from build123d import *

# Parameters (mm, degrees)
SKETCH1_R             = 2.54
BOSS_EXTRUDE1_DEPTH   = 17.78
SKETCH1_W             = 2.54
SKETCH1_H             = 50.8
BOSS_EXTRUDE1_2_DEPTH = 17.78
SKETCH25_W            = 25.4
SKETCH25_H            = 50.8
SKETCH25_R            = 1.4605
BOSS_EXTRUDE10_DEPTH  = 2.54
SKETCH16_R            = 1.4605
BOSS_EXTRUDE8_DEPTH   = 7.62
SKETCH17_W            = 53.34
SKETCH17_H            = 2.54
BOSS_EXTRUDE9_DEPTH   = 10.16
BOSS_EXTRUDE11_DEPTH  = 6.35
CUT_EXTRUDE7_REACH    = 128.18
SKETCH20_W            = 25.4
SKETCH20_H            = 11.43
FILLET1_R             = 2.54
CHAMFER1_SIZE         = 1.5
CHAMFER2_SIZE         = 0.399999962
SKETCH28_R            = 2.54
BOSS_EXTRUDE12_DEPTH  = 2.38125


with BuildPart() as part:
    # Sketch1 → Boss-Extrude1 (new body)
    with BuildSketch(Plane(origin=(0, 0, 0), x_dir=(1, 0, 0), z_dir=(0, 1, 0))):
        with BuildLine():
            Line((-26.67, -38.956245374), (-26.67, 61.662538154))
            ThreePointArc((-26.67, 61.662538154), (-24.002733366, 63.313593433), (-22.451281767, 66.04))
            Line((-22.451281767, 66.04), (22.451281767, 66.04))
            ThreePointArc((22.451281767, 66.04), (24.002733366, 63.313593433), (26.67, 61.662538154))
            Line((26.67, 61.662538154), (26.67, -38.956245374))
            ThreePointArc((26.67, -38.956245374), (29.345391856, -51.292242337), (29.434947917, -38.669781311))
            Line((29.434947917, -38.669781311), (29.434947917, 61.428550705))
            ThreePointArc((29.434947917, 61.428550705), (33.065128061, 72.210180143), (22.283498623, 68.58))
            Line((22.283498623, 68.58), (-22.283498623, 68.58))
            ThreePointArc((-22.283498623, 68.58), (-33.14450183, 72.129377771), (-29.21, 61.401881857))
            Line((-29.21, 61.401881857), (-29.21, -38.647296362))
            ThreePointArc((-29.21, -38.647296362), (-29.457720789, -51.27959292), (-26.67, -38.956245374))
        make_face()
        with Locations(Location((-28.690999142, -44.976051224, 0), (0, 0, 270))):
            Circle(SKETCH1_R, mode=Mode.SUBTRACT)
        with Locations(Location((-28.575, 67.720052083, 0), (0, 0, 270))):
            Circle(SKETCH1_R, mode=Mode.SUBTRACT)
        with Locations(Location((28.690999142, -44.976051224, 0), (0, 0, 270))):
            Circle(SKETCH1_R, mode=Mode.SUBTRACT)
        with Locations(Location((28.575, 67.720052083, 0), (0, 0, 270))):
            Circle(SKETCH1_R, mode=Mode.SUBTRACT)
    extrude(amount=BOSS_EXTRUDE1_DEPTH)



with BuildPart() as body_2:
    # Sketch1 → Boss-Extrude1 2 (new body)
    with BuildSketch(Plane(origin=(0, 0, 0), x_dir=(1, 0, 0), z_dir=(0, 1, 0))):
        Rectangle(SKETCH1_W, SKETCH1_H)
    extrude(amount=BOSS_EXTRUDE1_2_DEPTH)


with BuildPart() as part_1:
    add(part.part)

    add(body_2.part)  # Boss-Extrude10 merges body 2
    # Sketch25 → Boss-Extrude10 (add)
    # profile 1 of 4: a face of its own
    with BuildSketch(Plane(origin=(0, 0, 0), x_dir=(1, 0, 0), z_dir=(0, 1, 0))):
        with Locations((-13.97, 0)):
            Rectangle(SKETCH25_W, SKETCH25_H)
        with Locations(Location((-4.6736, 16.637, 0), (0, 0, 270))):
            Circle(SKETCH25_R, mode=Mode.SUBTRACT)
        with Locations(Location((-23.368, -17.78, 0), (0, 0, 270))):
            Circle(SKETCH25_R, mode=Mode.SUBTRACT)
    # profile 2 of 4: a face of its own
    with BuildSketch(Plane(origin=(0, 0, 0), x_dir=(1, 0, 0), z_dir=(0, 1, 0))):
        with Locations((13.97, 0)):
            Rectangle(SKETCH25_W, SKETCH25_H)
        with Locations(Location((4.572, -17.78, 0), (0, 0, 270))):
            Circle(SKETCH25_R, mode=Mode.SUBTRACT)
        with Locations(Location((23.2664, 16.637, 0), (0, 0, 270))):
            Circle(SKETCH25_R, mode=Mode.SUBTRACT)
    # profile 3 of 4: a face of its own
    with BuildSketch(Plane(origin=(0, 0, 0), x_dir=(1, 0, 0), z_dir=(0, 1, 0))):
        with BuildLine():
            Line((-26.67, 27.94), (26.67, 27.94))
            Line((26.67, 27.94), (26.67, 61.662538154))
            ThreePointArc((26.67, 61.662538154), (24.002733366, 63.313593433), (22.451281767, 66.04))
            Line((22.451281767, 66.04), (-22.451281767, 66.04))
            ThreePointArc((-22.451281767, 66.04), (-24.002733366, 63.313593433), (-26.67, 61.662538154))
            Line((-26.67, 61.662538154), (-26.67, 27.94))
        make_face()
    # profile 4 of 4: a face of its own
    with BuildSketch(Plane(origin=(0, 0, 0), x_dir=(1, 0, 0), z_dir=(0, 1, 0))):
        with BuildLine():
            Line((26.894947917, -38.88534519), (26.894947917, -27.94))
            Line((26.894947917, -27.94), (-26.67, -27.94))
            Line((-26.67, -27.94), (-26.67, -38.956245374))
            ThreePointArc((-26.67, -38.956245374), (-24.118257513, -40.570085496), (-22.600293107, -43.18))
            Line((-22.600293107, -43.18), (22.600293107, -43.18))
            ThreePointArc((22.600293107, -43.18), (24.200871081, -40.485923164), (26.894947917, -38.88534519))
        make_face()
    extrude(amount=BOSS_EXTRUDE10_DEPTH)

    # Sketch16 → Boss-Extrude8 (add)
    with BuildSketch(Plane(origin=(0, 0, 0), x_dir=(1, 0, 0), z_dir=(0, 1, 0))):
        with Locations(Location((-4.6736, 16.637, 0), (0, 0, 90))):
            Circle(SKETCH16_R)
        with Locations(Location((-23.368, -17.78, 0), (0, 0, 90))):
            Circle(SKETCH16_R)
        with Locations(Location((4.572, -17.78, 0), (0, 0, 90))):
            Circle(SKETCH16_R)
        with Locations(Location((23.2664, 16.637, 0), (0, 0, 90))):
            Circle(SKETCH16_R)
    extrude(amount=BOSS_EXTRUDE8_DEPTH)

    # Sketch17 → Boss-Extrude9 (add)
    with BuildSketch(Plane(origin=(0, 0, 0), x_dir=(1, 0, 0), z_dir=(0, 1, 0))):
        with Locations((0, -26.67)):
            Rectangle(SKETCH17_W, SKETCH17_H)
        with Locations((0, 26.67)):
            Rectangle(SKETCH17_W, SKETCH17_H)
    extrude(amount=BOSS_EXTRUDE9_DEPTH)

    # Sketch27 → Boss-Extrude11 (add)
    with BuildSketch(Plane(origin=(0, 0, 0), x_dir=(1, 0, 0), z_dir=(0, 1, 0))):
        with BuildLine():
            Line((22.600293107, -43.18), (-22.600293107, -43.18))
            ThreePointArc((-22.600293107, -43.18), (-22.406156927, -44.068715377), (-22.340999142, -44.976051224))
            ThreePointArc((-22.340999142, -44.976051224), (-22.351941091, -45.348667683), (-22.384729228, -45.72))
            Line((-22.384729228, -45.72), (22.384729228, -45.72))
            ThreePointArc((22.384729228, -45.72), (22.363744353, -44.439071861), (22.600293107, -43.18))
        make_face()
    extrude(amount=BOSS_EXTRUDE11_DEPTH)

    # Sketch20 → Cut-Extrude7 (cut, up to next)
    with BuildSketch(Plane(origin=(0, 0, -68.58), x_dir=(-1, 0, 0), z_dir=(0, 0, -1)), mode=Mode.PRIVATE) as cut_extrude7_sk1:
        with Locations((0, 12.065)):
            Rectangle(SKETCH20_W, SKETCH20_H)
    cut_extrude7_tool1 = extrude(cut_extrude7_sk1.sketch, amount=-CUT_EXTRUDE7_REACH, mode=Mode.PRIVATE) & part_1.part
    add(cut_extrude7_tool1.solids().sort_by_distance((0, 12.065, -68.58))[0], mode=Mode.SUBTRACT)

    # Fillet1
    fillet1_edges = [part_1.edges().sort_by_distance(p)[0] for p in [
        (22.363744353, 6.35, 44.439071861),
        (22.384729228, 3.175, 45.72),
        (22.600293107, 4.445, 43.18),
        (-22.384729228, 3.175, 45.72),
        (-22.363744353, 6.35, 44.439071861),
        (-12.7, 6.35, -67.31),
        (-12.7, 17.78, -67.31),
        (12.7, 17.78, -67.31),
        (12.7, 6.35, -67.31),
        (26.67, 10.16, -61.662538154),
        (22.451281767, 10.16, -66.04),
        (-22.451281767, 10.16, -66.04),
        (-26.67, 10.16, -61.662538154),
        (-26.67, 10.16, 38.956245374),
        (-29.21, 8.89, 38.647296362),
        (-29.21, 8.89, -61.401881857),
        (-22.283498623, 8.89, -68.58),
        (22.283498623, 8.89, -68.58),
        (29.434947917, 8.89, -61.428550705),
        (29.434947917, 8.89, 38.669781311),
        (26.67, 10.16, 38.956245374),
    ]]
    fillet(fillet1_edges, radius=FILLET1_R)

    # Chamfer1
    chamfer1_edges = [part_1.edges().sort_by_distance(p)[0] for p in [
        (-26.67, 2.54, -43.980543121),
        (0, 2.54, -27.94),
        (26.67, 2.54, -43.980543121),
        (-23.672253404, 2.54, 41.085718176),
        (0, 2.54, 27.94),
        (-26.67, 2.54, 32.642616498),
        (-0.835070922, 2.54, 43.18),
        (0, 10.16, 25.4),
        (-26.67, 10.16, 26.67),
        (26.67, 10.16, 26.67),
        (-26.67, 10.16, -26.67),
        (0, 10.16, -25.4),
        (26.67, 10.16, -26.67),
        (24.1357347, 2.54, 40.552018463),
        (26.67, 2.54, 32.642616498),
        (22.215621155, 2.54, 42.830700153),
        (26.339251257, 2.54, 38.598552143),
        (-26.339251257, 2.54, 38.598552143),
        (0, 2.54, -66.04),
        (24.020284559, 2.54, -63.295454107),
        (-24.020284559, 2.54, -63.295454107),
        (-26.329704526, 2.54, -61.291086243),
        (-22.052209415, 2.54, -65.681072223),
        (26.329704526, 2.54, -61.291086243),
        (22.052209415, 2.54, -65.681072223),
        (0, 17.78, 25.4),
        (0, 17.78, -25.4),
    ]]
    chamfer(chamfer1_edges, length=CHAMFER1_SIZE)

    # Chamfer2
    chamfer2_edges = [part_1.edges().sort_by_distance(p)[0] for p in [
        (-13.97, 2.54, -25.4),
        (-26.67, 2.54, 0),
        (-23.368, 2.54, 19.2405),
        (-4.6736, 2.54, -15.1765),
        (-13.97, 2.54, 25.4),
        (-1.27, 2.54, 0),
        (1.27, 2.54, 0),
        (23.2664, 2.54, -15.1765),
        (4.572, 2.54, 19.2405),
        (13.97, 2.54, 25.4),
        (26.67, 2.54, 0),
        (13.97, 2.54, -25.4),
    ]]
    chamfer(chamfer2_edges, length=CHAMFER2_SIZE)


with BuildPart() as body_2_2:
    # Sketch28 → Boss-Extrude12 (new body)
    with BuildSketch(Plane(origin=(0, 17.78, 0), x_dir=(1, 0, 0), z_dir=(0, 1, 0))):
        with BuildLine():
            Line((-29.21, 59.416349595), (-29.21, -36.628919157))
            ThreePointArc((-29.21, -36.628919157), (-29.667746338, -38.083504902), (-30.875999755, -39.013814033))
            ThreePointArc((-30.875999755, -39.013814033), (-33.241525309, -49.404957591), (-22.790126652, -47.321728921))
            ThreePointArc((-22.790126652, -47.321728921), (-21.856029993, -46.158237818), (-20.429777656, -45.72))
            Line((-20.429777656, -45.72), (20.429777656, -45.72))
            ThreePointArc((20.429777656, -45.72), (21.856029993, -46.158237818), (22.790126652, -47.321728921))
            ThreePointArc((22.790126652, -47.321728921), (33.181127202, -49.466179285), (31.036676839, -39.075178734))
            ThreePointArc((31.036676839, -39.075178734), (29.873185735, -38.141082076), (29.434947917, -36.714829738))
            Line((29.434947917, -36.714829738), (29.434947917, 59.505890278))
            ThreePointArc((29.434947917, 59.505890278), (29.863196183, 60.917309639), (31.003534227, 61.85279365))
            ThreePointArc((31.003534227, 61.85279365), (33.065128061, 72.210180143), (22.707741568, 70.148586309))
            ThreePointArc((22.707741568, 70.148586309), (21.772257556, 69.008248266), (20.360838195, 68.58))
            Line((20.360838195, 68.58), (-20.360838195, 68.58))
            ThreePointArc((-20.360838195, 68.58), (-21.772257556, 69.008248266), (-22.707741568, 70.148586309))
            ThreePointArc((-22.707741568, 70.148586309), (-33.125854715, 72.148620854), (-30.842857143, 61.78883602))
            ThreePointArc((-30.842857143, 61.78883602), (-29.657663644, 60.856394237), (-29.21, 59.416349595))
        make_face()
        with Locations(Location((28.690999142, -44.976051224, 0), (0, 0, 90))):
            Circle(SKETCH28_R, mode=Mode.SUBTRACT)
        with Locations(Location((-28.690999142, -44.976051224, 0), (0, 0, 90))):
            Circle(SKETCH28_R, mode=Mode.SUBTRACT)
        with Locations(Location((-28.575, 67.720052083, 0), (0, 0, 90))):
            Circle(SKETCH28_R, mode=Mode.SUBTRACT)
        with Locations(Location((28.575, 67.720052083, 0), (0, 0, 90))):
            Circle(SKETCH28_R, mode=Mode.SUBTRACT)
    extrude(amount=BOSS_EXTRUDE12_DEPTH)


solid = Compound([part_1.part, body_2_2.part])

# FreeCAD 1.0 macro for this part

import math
import FreeCAD as App
import Part
import Sketcher

V = App.Vector
Q = App.Units.Quantity


def edges_at(feature, points):
    """Names of the edges that pass closest to the given points."""
    edges = feature.Shape.Edges
    near = lambda p: min(range(len(edges)), key=lambda i: edges[i].distToShape(Part.Vertex(*p))[0])
    return sorted({f"Edge{near(p) + 1}" for p in points})

doc = App.newDocument("Part")
params = doc.addObject("Spreadsheet::Sheet", "Params")
for row, (alias, value) in enumerate([
    ("sketch1_diameter", "0.2 in"),
    ("sketch1_radius", "0.25 in"),
    ("pad1_length", "0.7 in"),
    ("sketch2_height", "2 in"),
    ("sketch2_width", "0.1 in"),
    ("pad2_length", "0.7 in"),
    ("sketch3_width", "1 in"),
    ("sketch3_height", "2 in"),
    ("sketch3_radius", "0.25 in"),
    ("sketch3_diameter", "0.115 in"),
    ("sketch3_width2", "2.1 in"),
    ("pad3_length", "0.1 in"),
    ("sketch4_diameter", "0.115 in"),
    ("pad4_length", "0.3 in"),
    ("sketch5_width", "2.1 in"),
    ("sketch5_height", "0.1 in"),
    ("pad5_length", "0.4 in"),
    ("sketch6_radius", "0.25 in"),
    ("pad6_length", "0.25 in"),
    ("sketch7_width", "1 in"),
    ("sketch7_height", "0.45 in"),
    ("fillet_radius", "0.1 in"),
    ("chamfer_size", "1.5 mm"),
    ("chamfer2_size", "0.4 mm"),
    ("sketch8_diameter", "0.2 in"),
    ("sketch8_radius", "0.25 in"),
    ("pad7_length", "0.09375 in"),
], start=1):
    params.set(f"A{row}", alias)
    params.set(f"B{row}", "=" + value)
    params.setAlias(f"B{row}", alias)

body = doc.addObject("PartDesign::Body", "Body")

sketch1 = body.newObject("Sketcher::SketchObject", "Sketch")
sketch1.AttachmentSupport = (doc.getObject("XZ_Plane"), [""])
sketch1.MapMode = "FlatFace"
sketch1.addGeometry([
    Part.LineSegment(V(-26.67, 38.956245, 0), V(-26.67, -61.662538, 0)),
    Part.ArcOfCircle(Part.Circle(V(-28.575, -67.720052, 0), V(0, 0, 1), 6.35), math.radians(15.341709), math.radians(72.542397)),
    Part.LineSegment(V(-22.451282, -66.04, 0), V(22.451282, -66.04, 0)),
    Part.ArcOfCircle(Part.Circle(V(28.575, -67.720052, 0), V(0, 0, 1), 6.35), math.radians(107.457603), math.radians(164.658291)),
    Part.LineSegment(V(26.67, -61.662538, 0), V(26.67, 38.956245, 0)),
    Part.ArcOfCircle(Part.Circle(V(28.690999, 44.976051, 0), V(0, 0, 1), 6.35), math.radians(-83.27193), math.radians(251.441812)),
    Part.LineSegment(V(29.434948, 38.669781, 0), V(29.434948, -61.428551, 0)),
    Part.ArcOfCircle(Part.Circle(V(28.575, -67.720052, 0), V(0, 0, 1), 6.35), math.radians(-172.216811), math.radians(82.216811)),
    Part.LineSegment(V(22.283499, -68.58, 0), V(-22.283499, -68.58, 0)),
    Part.ArcOfCircle(Part.Circle(V(-28.575, -67.720052, 0), V(0, 0, 1), 6.35), math.radians(95.73917), math.radians(352.216811)),
    Part.LineSegment(V(-29.21, -61.401882, 0), V(-29.21, 38.647296, 0)),
    Part.ArcOfCircle(Part.Circle(V(-28.690999, 44.976051, 0), V(0, 0, 1), 6.35), math.radians(-71.441812), math.radians(265.311848)),
    Part.Circle(V(-28.690999, 44.976051, 0), V(0, 0, 1), 2.54),
    Part.Circle(V(28.690999, 44.976051, 0), V(0, 0, 1), 2.54),
    Part.Circle(V(-28.575, -67.720052, 0), V(0, 0, 1), 2.54),
    Part.Circle(V(28.575, -67.720052, 0), V(0, 0, 1), 2.54),
], False)
sketch1.addConstraint([
    Sketcher.Constraint("Coincident", 0, 2, 1, 2),
    Sketcher.Constraint("Coincident", 1, 1, 2, 1),
    Sketcher.Constraint("Coincident", 2, 2, 3, 2),
    Sketcher.Constraint("Coincident", 3, 1, 4, 1),
    Sketcher.Constraint("Coincident", 4, 2, 5, 2),
    Sketcher.Constraint("Coincident", 5, 1, 6, 1),
    Sketcher.Constraint("Coincident", 6, 2, 7, 2),
    Sketcher.Constraint("Coincident", 7, 1, 8, 1),
    Sketcher.Constraint("Coincident", 8, 2, 9, 2),
    Sketcher.Constraint("Coincident", 9, 1, 10, 1),
    Sketcher.Constraint("Coincident", 10, 2, 11, 2),
    Sketcher.Constraint("Coincident", 11, 1, 0, 1),
    Sketcher.Constraint("Vertical", 0),
    Sketcher.Constraint("Horizontal", 2),
    Sketcher.Constraint("Vertical", 4),
    Sketcher.Constraint("Vertical", 6),
    Sketcher.Constraint("Horizontal", 8),
    Sketcher.Constraint("Vertical", 10),
    Sketcher.Constraint("Coincident", 7, 3, 3, 3),
    Sketcher.Constraint("Coincident", 9, 3, 1, 3),
    Sketcher.Constraint("Coincident", 12, 3, 11, 3),
    Sketcher.Constraint("Coincident", 13, 3, 5, 3),
    Sketcher.Constraint("Coincident", 14, 3, 1, 3),
    Sketcher.Constraint("Coincident", 15, 3, 3, 3),
    Sketcher.Constraint("Equal", 1, 3),
    Sketcher.Constraint("Equal", 3, 5),
    Sketcher.Constraint("Equal", 5, 7),
    Sketcher.Constraint("Equal", 7, 9),
    Sketcher.Constraint("Equal", 9, 11),
    Sketcher.Constraint("Equal", 12, 13),
    Sketcher.Constraint("Equal", 13, 14),
    Sketcher.Constraint("Equal", 14, 15),
    Sketcher.Constraint("Symmetric", 1, 3, 3, 3, -2),
    Sketcher.Constraint("Symmetric", 5, 3, 11, 3, -2),
    Sketcher.Constraint("Horizontal", 0, 2, 3, 1),
    Sketcher.Constraint("Diameter", 12, Q("0.2 in")),
    Sketcher.Constraint("Radius", 1, Q("0.25 in")),
    Sketcher.Constraint("DistanceY", 1, 1, -1, 1, Q("2.6 in")),
    Sketcher.Constraint("DistanceY", 7, 1, -1, 1, Q("2.7 in")),
    Sketcher.Constraint("DistanceX", 9, 1, 0, 2, Q("0.1 in")),
    Sketcher.Constraint("DistanceX", 10, 2, 4, 2, Q("2.2 in")),
    Sketcher.Constraint("DistanceX", 1, 3, 3, 3, Q("2.25 in")),
    Sketcher.Constraint("DistanceY", 10, 1, 10, 2, 100.049178),
    Sketcher.Constraint("DistanceX", -1, 1, 5, 3, 28.690999),
    Sketcher.Constraint("DistanceX", -1, 1, 7, 1, 22.283499),
    Sketcher.Constraint("DistanceY", 3, 3, 6, 2, 6.291501),
])
sketch1.setExpression("Constraints[35]", "Params.sketch1_diameter")
sketch1.setExpression("Constraints[36]", "Params.sketch1_radius")
pad1 = body.newObject("PartDesign::Pad", "Pad")
pad1.Profile = sketch1
pad1.setExpression("Length", "Params.pad1_length")
pad1.Reversed = True
body2 = doc.addObject("PartDesign::Body", "Body001")

sketch2 = body2.newObject("Sketcher::SketchObject", "Sketch001")
sketch2.AttachmentSupport = (doc.getObject("XZ_Plane001"), [""])
sketch2.MapMode = "FlatFace"
sketch2.addGeometry([
    Part.LineSegment(V(-1.27, -25.4, 0), V(-1.27, 25.4, 0)),
    Part.LineSegment(V(-1.27, 25.4, 0), V(1.27, 25.4, 0)),
    Part.LineSegment(V(1.27, 25.4, 0), V(1.27, -25.4, 0)),
    Part.LineSegment(V(1.27, -25.4, 0), V(-1.27, -25.4, 0)),
], False)
sketch2.addConstraint([
    Sketcher.Constraint("Coincident", 0, 2, 1, 1),
    Sketcher.Constraint("Coincident", 1, 2, 2, 1),
    Sketcher.Constraint("Coincident", 2, 2, 3, 1),
    Sketcher.Constraint("Coincident", 3, 2, 0, 1),
    Sketcher.Constraint("Vertical", 0),
    Sketcher.Constraint("Horizontal", 1),
    Sketcher.Constraint("Vertical", 2),
    Sketcher.Constraint("Horizontal", 3),
    Sketcher.Constraint("Symmetric", 0, 2, 2, 2, -1, 1),
    Sketcher.Constraint("DistanceY", 0, 1, 0, 2, Q("2 in")),
    Sketcher.Constraint("DistanceX", 1, 1, 1, 2, Q("0.1 in")),
])
sketch2.setExpression("Constraints[9]", "Params.sketch2_height")
sketch2.setExpression("Constraints[10]", "Params.sketch2_width")
pad2 = body2.newObject("PartDesign::Pad", "Pad001")
pad2.Profile = sketch2
pad2.setExpression("Length", "Params.pad2_length")
pad2.Reversed = True
body.AllowCompound = True
doc.recompute()

boolean = body.newObject("PartDesign::Boolean", "Boolean")
boolean.Type = "Fuse"
boolean.addObjects([body2])

sketch3 = body.newObject("Sketcher::SketchObject", "Sketch002")
sketch3.AttachmentSupport = (doc.getObject("XZ_Plane"), [""])
sketch3.MapMode = "FlatFace"
sketch3.addGeometry([
    Part.LineSegment(V(-26.67, -25.4, 0), V(-26.67, 25.4, 0)),
    Part.LineSegment(V(-26.67, 25.4, 0), V(-1.27, 25.4, 0)),
    Part.LineSegment(V(-1.27, 25.4, 0), V(-1.27, -25.4, 0)),
    Part.LineSegment(V(-1.27, -25.4, 0), V(-26.67, -25.4, 0)),
    Part.Circle(V(-23.368, 17.78, 0), V(0, 0, 1), 1.4605),
    Part.Circle(V(-4.6736, -16.637, 0), V(0, 0, 1), 1.4605),
    Part.LineSegment(V(1.27, -25.4, 0), V(1.27, 25.4, 0)),
    Part.LineSegment(V(1.27, 25.4, 0), V(26.67, 25.4, 0)),
    Part.LineSegment(V(26.67, 25.4, 0), V(26.67, -25.4, 0)),
    Part.LineSegment(V(26.67, -25.4, 0), V(1.27, -25.4, 0)),
    Part.Circle(V(4.572, 17.78, 0), V(0, 0, 1), 1.4605),
    Part.Circle(V(23.2664, -16.637, 0), V(0, 0, 1), 1.4605),
    Part.LineSegment(V(-26.67, -27.94, 0), V(26.67, -27.94, 0)),
    Part.LineSegment(V(26.67, -27.94, 0), V(26.67, -61.662538, 0)),
    Part.ArcOfCircle(Part.Circle(V(28.575, -67.720052, 0), V(0, 0, 1), 6.35), math.radians(107.457603), math.radians(164.658291)),
    Part.LineSegment(V(22.451282, -66.04, 0), V(-22.451282, -66.04, 0)),
    Part.ArcOfCircle(Part.Circle(V(-28.575, -67.720052, 0), V(0, 0, 1), 6.35), math.radians(15.341709), math.radians(72.542397)),
    Part.LineSegment(V(-26.67, -61.662538, 0), V(-26.67, -27.94, 0)),
    Part.LineSegment(V(26.894948, 38.885345, 0), V(26.894948, 27.94, 0)),
    Part.LineSegment(V(26.894948, 27.94, 0), V(-26.67, 27.94, 0)),
    Part.LineSegment(V(-26.67, 27.94, 0), V(-26.67, 38.956245, 0)),
    Part.ArcOfCircle(Part.Circle(V(-28.690999, 44.976051, 0), V(0, 0, 1), 6.35), math.radians(-71.441812), math.radians(-16.42994)),
    Part.LineSegment(V(-22.600293, 43.18, 0), V(22.600293, 43.18, 0)),
    Part.ArcOfCircle(Part.Circle(V(28.690999, 44.976051, 0), V(0, 0, 1), 6.35), math.radians(-163.57006), math.radians(-106.42994)),
], False)
sketch3.addConstraint([
    Sketcher.Constraint("Coincident", 0, 2, 1, 1),
    Sketcher.Constraint("Coincident", 1, 2, 2, 1),
    Sketcher.Constraint("Coincident", 2, 2, 3, 1),
    Sketcher.Constraint("Coincident", 3, 2, 0, 1),
    Sketcher.Constraint("Coincident", 6, 2, 7, 1),
    Sketcher.Constraint("Coincident", 7, 2, 8, 1),
    Sketcher.Constraint("Coincident", 8, 2, 9, 1),
    Sketcher.Constraint("Coincident", 9, 2, 6, 1),
    Sketcher.Constraint("Coincident", 12, 2, 13, 1),
    Sketcher.Constraint("Coincident", 13, 2, 14, 1),
    Sketcher.Constraint("Coincident", 14, 2, 15, 1),
    Sketcher.Constraint("Coincident", 15, 2, 16, 1),
    Sketcher.Constraint("Coincident", 16, 2, 17, 1),
    Sketcher.Constraint("Coincident", 17, 2, 12, 1),
    Sketcher.Constraint("Coincident", 18, 2, 19, 1),
    Sketcher.Constraint("Coincident", 19, 2, 20, 1),
    Sketcher.Constraint("Coincident", 20, 2, 21, 1),
    Sketcher.Constraint("Coincident", 21, 2, 22, 1),
    Sketcher.Constraint("Coincident", 22, 2, 23, 1),
    Sketcher.Constraint("Coincident", 23, 2, 18, 1),
    Sketcher.Constraint("Vertical", 0),
    Sketcher.Constraint("Horizontal", 1),
    Sketcher.Constraint("Vertical", 2),
    Sketcher.Constraint("Horizontal", 3),
    Sketcher.Constraint("Vertical", 6),
    Sketcher.Constraint("Horizontal", 7),
    Sketcher.Constraint("Vertical", 8),
    Sketcher.Constraint("Horizontal", 9),
    Sketcher.Constraint("Horizontal", 12),
    Sketcher.Constraint("Vertical", 13),
    Sketcher.Constraint("Horizontal", 15),
    Sketcher.Constraint("Vertical", 17),
    Sketcher.Constraint("Vertical", 18),
    Sketcher.Constraint("Horizontal", 19),
    Sketcher.Constraint("Vertical", 20),
    Sketcher.Constraint("Horizontal", 22),
    Sketcher.Constraint("Equal", 4, 5),
    Sketcher.Constraint("Equal", 5, 10),
    Sketcher.Constraint("Equal", 10, 11),
    Sketcher.Constraint("Equal", 14, 16),
    Sketcher.Constraint("Equal", 16, 21),
    Sketcher.Constraint("Equal", 21, 23),
    Sketcher.Constraint("Symmetric", 2, 2, 6, 2, -1, 1),
    Sketcher.Constraint("Symmetric", 0, 2, 8, 2, -1, 1),
    Sketcher.Constraint("Symmetric", 12, 2, 19, 2, -1, 1),
    Sketcher.Constraint("Symmetric", 14, 3, 16, 3, -2),
    Sketcher.Constraint("Symmetric", 21, 3, 23, 3, -2),
    Sketcher.Constraint("Horizontal", 4, 3, 10, 3),
    Sketcher.Constraint("Horizontal", 5, 3, 11, 3),
    Sketcher.Constraint("Horizontal", 1, 2, 6, 2),
    Sketcher.Constraint("Horizontal", 13, 2, 16, 2),
    Sketcher.Constraint("Vertical", 8, 2, 12, 2),
    Sketcher.Constraint("DistanceX", 1, 1, 1, 2, Q("1 in")),
    Sketcher.Constraint("DistanceY", 0, 1, 0, 2, Q("2 in")),
    Sketcher.Constraint("Radius", 14, Q("0.25 in")),
    Sketcher.Constraint("Diameter", 4, Q("0.115 in")),
    Sketcher.Constraint("DistanceX", 12, 1, 12, 2, Q("2.1 in")),
    Sketcher.Constraint("DistanceY", 4, 3, 21, 2, Q("1 in")),
    Sketcher.Constraint("DistanceY", -1, 1, 4, 3, Q("0.7 in")),
    Sketcher.Constraint("DistanceY", 12, 2, -1, 1, Q("1.1 in")),
    Sketcher.Constraint("DistanceY", 14, 2, -1, 1, Q("2.6 in")),
    Sketcher.Constraint("DistanceX", 4, 3, 10, 3, Q("1.1 in")),
    Sketcher.Constraint("DistanceX", 5, 3, 11, 3, Q("1.1 in")),
    Sketcher.Constraint("DistanceX", 4, 3, -1, 1, Q("0.92 in")),
    Sketcher.Constraint("DistanceX", 16, 3, 14, 3, Q("2.25 in")),
    Sketcher.Constraint("DistanceX", 5, 3, -1, 1, Q("0.184 in")),
    Sketcher.Constraint("DistanceY", 5, 3, -1, 1, Q("0.655 in")),
    Sketcher.Constraint("DistanceY", 13, 2, 13, 1, 33.722538),
    Sketcher.Constraint("DistanceX", 21, 3, -1, 1, 28.690999),
    Sketcher.Constraint("DistanceX", 19, 2, 19, 1, 53.564948),
    Sketcher.Constraint("DistanceX", 22, 1, 22, 2, 45.200586),
])
sketch3.setExpression("Constraints[52]", "Params.sketch3_width")
sketch3.setExpression("Constraints[53]", "Params.sketch3_height")
sketch3.setExpression("Constraints[54]", "Params.sketch3_radius")
sketch3.setExpression("Constraints[55]", "Params.sketch3_diameter")
sketch3.setExpression("Constraints[56]", "Params.sketch3_width2")
pad3 = body.newObject("PartDesign::Pad", "Pad002")
pad3.Profile = sketch3
pad3.setExpression("Length", "Params.pad3_length")
pad3.Reversed = True

sketch4 = body.newObject("Sketcher::SketchObject", "Sketch003")
sketch4.AttachmentSupport = (doc.getObject("XZ_Plane"), [""])
sketch4.MapMode = "FlatFace"
sketch4.addGeometry([
    Part.Circle(V(-4.6736, -16.637, 0), V(0, 0, 1), 1.4605),
    Part.Circle(V(-23.368, 17.78, 0), V(0, 0, 1), 1.4605),
    Part.Circle(V(4.572, 17.78, 0), V(0, 0, 1), 1.4605),
    Part.Circle(V(23.2664, -16.637, 0), V(0, 0, 1), 1.4605),
], False)
sketch4.addConstraint([
    Sketcher.Constraint("Equal", 0, 1),
    Sketcher.Constraint("Equal", 1, 2),
    Sketcher.Constraint("Equal", 2, 3),
    Sketcher.Constraint("Horizontal", 1, 3, 2, 3),
    Sketcher.Constraint("Horizontal", 0, 3, 3, 3),
    Sketcher.Constraint("Diameter", 0, Q("0.115 in")),
    Sketcher.Constraint("DistanceY", -1, 1, 1, 3, Q("0.7 in")),
    Sketcher.Constraint("DistanceX", 1, 3, 2, 3, Q("1.1 in")),
    Sketcher.Constraint("DistanceX", 0, 3, 3, 3, Q("1.1 in")),
    Sketcher.Constraint("DistanceX", 1, 3, -1, 1, Q("0.92 in")),
    Sketcher.Constraint("DistanceX", 0, 3, -1, 1, Q("0.184 in")),
    Sketcher.Constraint("DistanceY", 0, 3, -1, 1, Q("0.655 in")),
])
sketch4.setExpression("Constraints[5]", "Params.sketch4_diameter")
pad4 = body.newObject("PartDesign::Pad", "Pad003")
pad4.Profile = sketch4
pad4.setExpression("Length", "Params.pad4_length")
pad4.Reversed = True

sketch5 = body.newObject("Sketcher::SketchObject", "Sketch004")
sketch5.AttachmentSupport = (doc.getObject("XZ_Plane"), [""])
sketch5.MapMode = "FlatFace"
sketch5.addGeometry([
    Part.LineSegment(V(-26.67, 25.4, 0), V(-26.67, 27.94, 0)),
    Part.LineSegment(V(-26.67, 27.94, 0), V(26.67, 27.94, 0)),
    Part.LineSegment(V(26.67, 27.94, 0), V(26.67, 25.4, 0)),
    Part.LineSegment(V(26.67, 25.4, 0), V(-26.67, 25.4, 0)),
    Part.LineSegment(V(-26.67, -27.94, 0), V(-26.67, -25.4, 0)),
    Part.LineSegment(V(-26.67, -25.4, 0), V(26.67, -25.4, 0)),
    Part.LineSegment(V(26.67, -25.4, 0), V(26.67, -27.94, 0)),
    Part.LineSegment(V(26.67, -27.94, 0), V(-26.67, -27.94, 0)),
], False)
sketch5.addConstraint([
    Sketcher.Constraint("Coincident", 0, 2, 1, 1),
    Sketcher.Constraint("Coincident", 1, 2, 2, 1),
    Sketcher.Constraint("Coincident", 2, 2, 3, 1),
    Sketcher.Constraint("Coincident", 3, 2, 0, 1),
    Sketcher.Constraint("Coincident", 4, 2, 5, 1),
    Sketcher.Constraint("Coincident", 5, 2, 6, 1),
    Sketcher.Constraint("Coincident", 6, 2, 7, 1),
    Sketcher.Constraint("Coincident", 7, 2, 4, 1),
    Sketcher.Constraint("Vertical", 0),
    Sketcher.Constraint("Horizontal", 1),
    Sketcher.Constraint("Vertical", 2),
    Sketcher.Constraint("Horizontal", 3),
    Sketcher.Constraint("Vertical", 4),
    Sketcher.Constraint("Horizontal", 5),
    Sketcher.Constraint("Vertical", 6),
    Sketcher.Constraint("Horizontal", 7),
    Sketcher.Constraint("Symmetric", 2, 2, 4, 2, -1, 1),
    Sketcher.Constraint("Symmetric", 0, 2, 6, 2, -1, 1),
    Sketcher.Constraint("Vertical", 3, 2, 4, 2),
    Sketcher.Constraint("DistanceX", 1, 1, 1, 2, Q("2.1 in")),
    Sketcher.Constraint("DistanceY", 0, 1, 0, 2, Q("0.1 in")),
    Sketcher.Constraint("DistanceY", -1, 1, 2, 2, Q("1 in")),
])
sketch5.setExpression("Constraints[19]", "Params.sketch5_width")
sketch5.setExpression("Constraints[20]", "Params.sketch5_height")
pad5 = body.newObject("PartDesign::Pad", "Pad004")
pad5.Profile = sketch5
pad5.setExpression("Length", "Params.pad5_length")
pad5.Reversed = True

sketch6 = body.newObject("Sketcher::SketchObject", "Sketch005")
sketch6.AttachmentSupport = (doc.getObject("XZ_Plane"), [""])
sketch6.MapMode = "FlatFace"
sketch6.addGeometry([
    Part.LineSegment(V(22.600293, 43.18, 0), V(-22.600293, 43.18, 0)),
    Part.ArcOfCircle(Part.Circle(V(-28.690999, 44.976051, 0), V(0, 0, 1), 6.35), math.radians(-16.42994), math.radians(0)),
    Part.ArcOfCircle(Part.Circle(V(-28.690999, 44.976051, 0), V(0, 0, 1), 6.35), math.radians(0), math.radians(6.72807)),
    Part.LineSegment(V(-22.384729, 45.72, 0), V(22.384729, 45.72, 0)),
    Part.ArcOfCircle(Part.Circle(V(28.690999, 44.976051, 0), V(0, 0, 1), 6.35), math.radians(173.27193), math.radians(196.42994)),
], False)
sketch6.addConstraint([
    Sketcher.Constraint("Coincident", 0, 2, 1, 1),
    Sketcher.Constraint("Tangent", 1, 2, 2, 1),
    Sketcher.Constraint("Coincident", 2, 2, 3, 1),
    Sketcher.Constraint("Coincident", 3, 2, 4, 1),
    Sketcher.Constraint("Coincident", 4, 2, 0, 1),
    Sketcher.Constraint("Horizontal", 0),
    Sketcher.Constraint("Horizontal", 3),
    Sketcher.Constraint("Equal", 1, 2),
    Sketcher.Constraint("Equal", 2, 4),
    Sketcher.Constraint("Symmetric", 1, 3, 4, 3, -2),
    Sketcher.Constraint("Horizontal", 4, 3, 1, 2),
    Sketcher.Constraint("Radius", 1, Q("0.25 in")),
    Sketcher.Constraint("DistanceY", -1, 1, 0, 2, Q("1.7 in")),
    Sketcher.Constraint("DistanceY", -1, 1, 2, 2, Q("1.8 in")),
    Sketcher.Constraint("DistanceX", 3, 1, 3, 2, 44.769458),
    Sketcher.Constraint("DistanceX", 1, 3, -1, 1, 28.690999),
])
sketch6.setExpression("Constraints[11]", "Params.sketch6_radius")
pad6 = body.newObject("PartDesign::Pad", "Pad005")
pad6.Profile = sketch6
pad6.setExpression("Length", "Params.pad6_length")
pad6.Reversed = True

sketch7 = body.newObject("Sketcher::SketchObject", "Sketch006")
sketch7.AttachmentSupport = (doc.getObject("XY_Plane"), [""])
sketch7.MapMode = "FlatFace"
sketch7.AttachmentOffset = App.Placement(V(0, 0, -2.7 * 25.4), App.Rotation())
sketch7.addGeometry([
    Part.LineSegment(V(12.7, 17.78, 0), V(12.7, 6.35, 0)),
    Part.LineSegment(V(12.7, 6.35, 0), V(-12.7, 6.35, 0)),
    Part.LineSegment(V(-12.7, 6.35, 0), V(-12.7, 17.78, 0)),
    Part.LineSegment(V(-12.7, 17.78, 0), V(12.7, 17.78, 0)),
], False)
sketch7.addConstraint([
    Sketcher.Constraint("Coincident", 0, 2, 1, 1),
    Sketcher.Constraint("Coincident", 1, 2, 2, 1),
    Sketcher.Constraint("Coincident", 2, 2, 3, 1),
    Sketcher.Constraint("Coincident", 3, 2, 0, 1),
    Sketcher.Constraint("Vertical", 0),
    Sketcher.Constraint("Horizontal", 1),
    Sketcher.Constraint("Vertical", 2),
    Sketcher.Constraint("Horizontal", 3),
    Sketcher.Constraint("DistanceX", 1, 2, 1, 1, Q("1 in")),
    Sketcher.Constraint("DistanceY", 0, 2, 0, 1, Q("0.45 in")),
    Sketcher.Constraint("DistanceX", -1, 1, 0, 2, Q("0.5 in")),
    Sketcher.Constraint("DistanceY", -1, 1, 2, 2, Q("0.7 in")),
])
sketch7.setExpression("Constraints[8]", "Params.sketch7_width")
sketch7.setExpression("Constraints[9]", "Params.sketch7_height")
pocket1 = body.newObject("PartDesign::Pocket", "Pocket")
pocket1.Profile = sketch7
pocket1.Type = "UpToFirst"
pocket1.Reversed = True
doc.recompute()

fillet = body.newObject("PartDesign::Fillet", "Fillet")
fillet.Base = (pocket1, edges_at(pocket1, [
    (22.364, 6.35, 44.439),
    (22.385, 3.175, 45.72),
    (22.6, 4.445, 43.18),
    (-22.385, 3.175, 45.72),
    (-22.406, 6.35, 44.069),
    (-12.7, 6.35, -67.31),
    (-12.7, 17.78, -67.31),
    (12.7, 17.78, -67.31),
    (12.7, 6.35, -67.31),
    (26.67, 10.16, -61.663),
    (22.451, 10.16, -66.04),
    (-22.451, 10.16, -66.04),
    (-26.67, 10.16, -61.663),
    (-26.67, 10.16, 38.956),
    (-29.21, 8.89, 38.647),
    (-29.21, 8.89, -61.402),
    (-22.283, 8.89, -68.58),
    (22.283, 8.89, -68.58),
    (29.435, 8.89, -61.429),
    (29.435, 8.89, 38.67),
    (26.67, 10.16, 38.956),
]))
fillet.setExpression("Radius", "Params.fillet_radius")
doc.recompute()

chamfer = body.newObject("PartDesign::Chamfer", "Chamfer")
chamfer.Base = (fillet, edges_at(fillet, [
    (-26.67, 2.54, -43.981),
    (0, 2.54, -27.94),
    (26.67, 2.54, -43.981),
    (-23.672, 2.54, 41.086),
    (0, 2.54, 27.94),
    (-26.67, 2.54, 32.643),
    (-0.835, 2.54, 43.18),
    (0, 10.16, 25.4),
    (-26.67, 10.16, 26.67),
    (26.67, 10.16, 26.67),
    (-26.67, 10.16, -26.67),
    (0, 10.16, -25.4),
    (26.67, 10.16, -26.67),
    (24.136, 2.54, 40.552),
    (26.67, 2.54, 32.643),
    (22.216, 2.54, 42.831),
    (26.339, 2.54, 38.599),
    (-26.339, 2.54, 38.599),
    (0, 2.54, -66.04),
    (24.02, 2.54, -63.295),
    (-24.02, 2.54, -63.295),
    (-26.33, 2.54, -61.291),
    (-22.052, 2.54, -65.681),
    (26.33, 2.54, -61.291),
    (22.052, 2.54, -65.681),
    (0, 17.78, 25.4),
    (0, 17.78, -25.4),
]))
chamfer.setExpression("Size", "Params.chamfer_size")
doc.recompute()

chamfer2 = body.newObject("PartDesign::Chamfer", "Chamfer001")
chamfer2.Base = (chamfer, edges_at(chamfer, [
    (-13.97, 2.54, -25.4),
    (-26.67, 2.54, 0),
    (-23.368, 2.54, 19.241),
    (-4.674, 2.54, -15.177),
    (-13.97, 2.54, 25.4),
    (-1.27, 2.54, 0),
    (1.27, 2.54, 0),
    (23.266, 2.54, -15.177),
    (4.572, 2.54, 19.241),
    (13.97, 2.54, 25.4),
    (26.67, 2.54, 0),
    (13.97, 2.54, -25.4),
]))
chamfer2.setExpression("Size", "Params.chamfer2_size")
body3 = doc.addObject("PartDesign::Body", "Body002")

sketch8 = body3.newObject("Sketcher::SketchObject", "Sketch007")
sketch8.AttachmentSupport = (doc.getObject("XZ_Plane002"), [""])
sketch8.MapMode = "FlatFace"
sketch8.AttachmentOffset = App.Placement(V(0, 0, -0.7 * 25.4), App.Rotation())
sketch8.addGeometry([
    Part.LineSegment(V(-29.21, -59.41635, 0), V(-29.21, 36.628919, 0)),
    Part.ArcOfCircle(Part.Circle(V(-31.75, 36.628919, 0), V(0, 0, 1), 2.54), math.radians(0), math.radians(69.873464)),
    Part.ArcOfCircle(Part.Circle(V(-28.690999, 44.976051, 0), V(0, 0, 1), 6.35), math.radians(21.678499), math.radians(249.873464)),
    Part.ArcOfCircle(Part.Circle(V(-20.429778, 48.26, 0), V(0, 0, 1), 2.54), math.radians(-158.321501), math.radians(-90)),
    Part.LineSegment(V(-20.429778, 45.72, 0), V(20.429778, 45.72, 0)),
    Part.ArcOfCircle(Part.Circle(V(20.429778, 48.26, 0), V(0, 0, 1), 2.54), math.radians(-90), math.radians(-21.678499)),
    Part.ArcOfCircle(Part.Circle(V(28.690999, 44.976051, 0), V(0, 0, 1), 6.35), math.radians(-68.321501), math.radians(158.321501)),
    Part.ArcOfCircle(Part.Circle(V(31.974948, 36.71483, 0), V(0, 0, 1), 2.54), math.radians(111.678499), math.radians(180)),
    Part.LineSegment(V(29.434948, 36.71483, 0), V(29.434948, -59.50589, 0)),
    Part.ArcOfCircle(Part.Circle(V(31.974948, -59.50589, 0), V(0, 0, 1), 2.54), math.radians(180), math.radians(247.514703)),
    Part.ArcOfCircle(Part.Circle(V(28.575, -67.720052, 0), V(0, 0, 1), 6.35), math.radians(-157.514703), math.radians(67.514703)),
    Part.ArcOfCircle(Part.Circle(V(20.360838, -71.12, 0), V(0, 0, 1), 2.54), math.radians(22.485297), math.radians(90)),
    Part.LineSegment(V(20.360838, -68.58, 0), V(-20.360838, -68.58, 0)),
    Part.ArcOfCircle(Part.Circle(V(-20.360838, -71.12, 0), V(0, 0, 1), 2.54), math.radians(90), math.radians(157.514703)),
    Part.ArcOfCircle(Part.Circle(V(-28.575, -67.720052, 0), V(0, 0, 1), 6.35), math.radians(110.924832), math.radians(337.514703)),
    Part.ArcOfCircle(Part.Circle(V(-31.75, -59.41635, 0), V(0, 0, 1), 2.54), math.radians(-69.075168), math.radians(0)),
    Part.Circle(V(-28.690999, 44.976051, 0), V(0, 0, 1), 2.54),
    Part.Circle(V(28.690999, 44.976051, 0), V(0, 0, 1), 2.54),
    Part.Circle(V(-28.575, -67.720052, 0), V(0, 0, 1), 2.54),
    Part.Circle(V(28.575, -67.720052, 0), V(0, 0, 1), 2.54),
], False)
sketch8.addConstraint([
    Sketcher.Constraint("Tangent", 0, 2, 1, 1),
    Sketcher.Constraint("Tangent", 1, 2, 2, 2),
    Sketcher.Constraint("Tangent", 2, 1, 3, 1),
    Sketcher.Constraint("Tangent", 3, 2, 4, 1),
    Sketcher.Constraint("Tangent", 4, 2, 5, 1),
    Sketcher.Constraint("Tangent", 5, 2, 6, 2),
    Sketcher.Constraint("Tangent", 6, 1, 7, 1),
    Sketcher.Constraint("Tangent", 7, 2, 8, 1),
    Sketcher.Constraint("Tangent", 8, 2, 9, 1),
    Sketcher.Constraint("Tangent", 9, 2, 10, 2),
    Sketcher.Constraint("Tangent", 10, 1, 11, 1),
    Sketcher.Constraint("Tangent", 11, 2, 12, 1),
    Sketcher.Constraint("Tangent", 12, 2, 13, 1),
    Sketcher.Constraint("Tangent", 13, 2, 14, 2),
    Sketcher.Constraint("Tangent", 14, 1, 15, 1),
    Sketcher.Constraint("Tangent", 15, 2, 0, 1),
    Sketcher.Constraint("Vertical", 0),
    Sketcher.Constraint("Horizontal", 4),
    Sketcher.Constraint("Vertical", 8),
    Sketcher.Constraint("Horizontal", 12),
    Sketcher.Constraint("Coincident", 16, 3, 2, 3),
    Sketcher.Constraint("Coincident", 17, 3, 6, 3),
    Sketcher.Constraint("Coincident", 18, 3, 14, 3),
    Sketcher.Constraint("Coincident", 19, 3, 10, 3),
    Sketcher.Constraint("Equal", 1, 3),
    Sketcher.Constraint("Equal", 3, 5),
    Sketcher.Constraint("Equal", 2, 6),
    Sketcher.Constraint("Equal", 5, 7),
    Sketcher.Constraint("Equal", 7, 9),
    Sketcher.Constraint("Equal", 6, 10),
    Sketcher.Constraint("Equal", 9, 11),
    Sketcher.Constraint("Equal", 11, 13),
    Sketcher.Constraint("Equal", 10, 14),
    Sketcher.Constraint("Equal", 13, 15),
    Sketcher.Constraint("Equal", 15, 16),
    Sketcher.Constraint("Equal", 16, 17),
    Sketcher.Constraint("Equal", 17, 18),
    Sketcher.Constraint("Equal", 18, 19),
    Sketcher.Constraint("Symmetric", 2, 3, 6, 3, -2),
    Sketcher.Constraint("Symmetric", 10, 3, 14, 3, -2),
    Sketcher.Constraint("Diameter", 16, Q("0.2 in")),
    Sketcher.Constraint("Radius", 2, Q("0.25 in")),
    Sketcher.Constraint("DistanceY", -1, 1, 3, 3, Q("1.9 in")),
    Sketcher.Constraint("DistanceY", 11, 3, -1, 1, Q("2.8 in")),
    Sketcher.Constraint("DistanceX", 1, 3, -1, 1, Q("1.25 in")),
    Sketcher.Constraint("DistanceX", 14, 3, 10, 3, Q("2.25 in")),
    Sketcher.Constraint("DistanceY", 0, 1, 0, 2, 96.045269),
    Sketcher.Constraint("DistanceY", 8, 2, 8, 1, 96.22072),
    Sketcher.Constraint("DistanceX", 2, 3, -1, 1, 28.690999),
    Sketcher.Constraint("DistanceY", 7, 3, 5, 2, 10.606899),
])
sketch8.setExpression("Constraints[40]", "Params.sketch8_diameter")
sketch8.setExpression("Constraints[41]", "Params.sketch8_radius")
pad7 = body3.newObject("PartDesign::Pad", "Pad006")
pad7.Profile = sketch8
pad7.setExpression("Length", "Params.pad7_length")
pad7.Reversed = True

doc.recompute()
